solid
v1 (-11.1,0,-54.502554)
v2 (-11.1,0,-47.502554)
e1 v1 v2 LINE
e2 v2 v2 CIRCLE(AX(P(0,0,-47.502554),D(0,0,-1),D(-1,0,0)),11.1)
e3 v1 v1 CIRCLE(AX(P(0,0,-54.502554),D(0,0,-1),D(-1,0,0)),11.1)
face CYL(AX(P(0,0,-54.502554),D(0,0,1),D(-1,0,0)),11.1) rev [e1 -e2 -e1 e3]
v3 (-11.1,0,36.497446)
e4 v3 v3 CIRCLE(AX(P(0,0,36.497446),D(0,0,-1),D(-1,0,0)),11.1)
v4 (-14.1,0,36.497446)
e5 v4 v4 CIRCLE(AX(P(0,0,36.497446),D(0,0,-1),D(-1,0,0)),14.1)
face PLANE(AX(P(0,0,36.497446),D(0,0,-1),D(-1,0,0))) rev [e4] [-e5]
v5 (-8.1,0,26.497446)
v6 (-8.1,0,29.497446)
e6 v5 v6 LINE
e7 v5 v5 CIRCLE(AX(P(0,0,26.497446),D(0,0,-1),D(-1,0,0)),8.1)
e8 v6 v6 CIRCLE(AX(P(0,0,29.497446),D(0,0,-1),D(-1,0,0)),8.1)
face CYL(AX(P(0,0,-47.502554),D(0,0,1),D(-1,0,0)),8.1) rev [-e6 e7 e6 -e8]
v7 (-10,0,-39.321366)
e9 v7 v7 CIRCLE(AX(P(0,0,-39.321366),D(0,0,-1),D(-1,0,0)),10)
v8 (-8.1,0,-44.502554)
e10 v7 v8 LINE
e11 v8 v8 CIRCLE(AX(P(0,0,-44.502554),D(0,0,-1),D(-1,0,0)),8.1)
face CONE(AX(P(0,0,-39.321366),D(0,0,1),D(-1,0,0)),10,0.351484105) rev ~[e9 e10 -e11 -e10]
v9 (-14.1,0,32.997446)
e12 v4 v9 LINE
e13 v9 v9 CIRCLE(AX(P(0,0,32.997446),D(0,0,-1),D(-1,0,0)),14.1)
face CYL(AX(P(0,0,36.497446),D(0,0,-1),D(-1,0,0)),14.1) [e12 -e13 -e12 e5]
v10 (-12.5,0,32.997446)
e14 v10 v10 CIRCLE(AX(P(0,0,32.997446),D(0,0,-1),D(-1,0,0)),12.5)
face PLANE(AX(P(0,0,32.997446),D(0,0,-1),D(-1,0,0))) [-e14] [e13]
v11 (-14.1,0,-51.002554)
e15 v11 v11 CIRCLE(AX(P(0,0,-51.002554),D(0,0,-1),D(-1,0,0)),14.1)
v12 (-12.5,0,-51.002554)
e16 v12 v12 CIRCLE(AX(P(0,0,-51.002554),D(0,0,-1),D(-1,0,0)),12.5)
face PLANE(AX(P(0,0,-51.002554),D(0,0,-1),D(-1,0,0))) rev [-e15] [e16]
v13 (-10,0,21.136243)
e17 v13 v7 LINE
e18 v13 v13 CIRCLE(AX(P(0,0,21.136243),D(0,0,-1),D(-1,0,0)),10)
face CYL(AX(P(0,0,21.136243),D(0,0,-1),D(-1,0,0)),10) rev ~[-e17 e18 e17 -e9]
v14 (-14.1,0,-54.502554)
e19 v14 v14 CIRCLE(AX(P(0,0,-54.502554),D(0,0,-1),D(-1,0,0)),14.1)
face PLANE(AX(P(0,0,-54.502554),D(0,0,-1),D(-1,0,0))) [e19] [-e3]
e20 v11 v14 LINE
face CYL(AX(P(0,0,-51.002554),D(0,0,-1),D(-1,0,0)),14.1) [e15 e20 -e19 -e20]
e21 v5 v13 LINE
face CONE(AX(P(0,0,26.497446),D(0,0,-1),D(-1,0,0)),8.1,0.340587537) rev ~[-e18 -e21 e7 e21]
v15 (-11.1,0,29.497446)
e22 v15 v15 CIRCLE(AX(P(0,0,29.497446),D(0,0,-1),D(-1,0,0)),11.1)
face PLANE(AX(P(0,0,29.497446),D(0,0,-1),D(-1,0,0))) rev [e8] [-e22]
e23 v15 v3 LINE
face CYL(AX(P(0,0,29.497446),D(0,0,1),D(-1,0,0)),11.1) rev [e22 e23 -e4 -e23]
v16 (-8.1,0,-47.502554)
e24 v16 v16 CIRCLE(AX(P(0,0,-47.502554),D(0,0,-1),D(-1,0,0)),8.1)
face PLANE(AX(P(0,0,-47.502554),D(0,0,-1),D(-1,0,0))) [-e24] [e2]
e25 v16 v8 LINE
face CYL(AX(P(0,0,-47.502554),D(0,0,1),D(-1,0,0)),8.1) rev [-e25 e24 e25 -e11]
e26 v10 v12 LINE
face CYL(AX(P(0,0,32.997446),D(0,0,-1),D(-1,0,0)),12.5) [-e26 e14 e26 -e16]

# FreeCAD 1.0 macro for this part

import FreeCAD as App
import Part
import Sketcher

V = App.Vector

doc = App.newDocument("Part")
body = doc.addObject("PartDesign::Body", "Body")

# Sketch on XZ plane
sketch1 = doc.addObject("Sketcher::SketchObject", "Sketch")
body.addObject(sketch1)
sketch1.AttachmentSupport = (doc.XZ_Plane, [""])
sketch1.MapMode = "FlatFace"
sketch1.addGeometry([
    Part.LineSegment(V(-11.1, 36.5, 0), V(-14.1, 36.5, 0)),  # 0
    Part.LineSegment(V(-14.1, 36.5, 0), V(-14.1, 33, 0)),  # 1
    Part.LineSegment(V(-14.1, 33, 0), V(-12.5, 33, 0)),  # 2
    Part.LineSegment(V(-12.5, 33, 0), V(-12.5, -51, 0)),  # 3
    Part.LineSegment(V(-12.5, -51, 0), V(-14.1, -51, 0)),  # 4
    Part.LineSegment(V(-14.1, -51, 0), V(-14.1, -54.5, 0)),  # 5
    Part.LineSegment(V(-14.1, -54.5, 0), V(-11.1, -54.5, 0)),  # 6
    Part.LineSegment(V(-11.1, -54.5, 0), V(-11.1, -47.5, 0)),  # 7
    Part.LineSegment(V(-11.1, -47.5, 0), V(-8.1, -47.5, 0)),  # 8
    Part.LineSegment(V(-8.1, -47.5, 0), V(-8.1, 29.5, 0)),  # 9
    Part.LineSegment(V(-8.1, 29.5, 0), V(-11.1, 29.5, 0)),  # 10
    Part.LineSegment(V(-11.1, 29.5, 0), V(-11.1, 36.5, 0)),  # 11
], False)
sketch1.addConstraint([
    Sketcher.Constraint("Coincident", 0, 2, 1, 1),
    Sketcher.Constraint("Coincident", 1, 2, 2, 1),
    Sketcher.Constraint("Coincident", 2, 2, 3, 1),
    Sketcher.Constraint("Coincident", 3, 2, 4, 1),
    Sketcher.Constraint("Coincident", 4, 2, 5, 1),
    Sketcher.Constraint("Coincident", 5, 2, 6, 1),
    Sketcher.Constraint("Coincident", 6, 2, 7, 1),
    Sketcher.Constraint("Coincident", 7, 2, 8, 1),
    Sketcher.Constraint("Coincident", 8, 2, 9, 1),
    Sketcher.Constraint("Coincident", 9, 2, 10, 1),
    Sketcher.Constraint("Coincident", 10, 2, 11, 1),
    Sketcher.Constraint("Coincident", 11, 2, 0, 1),
    Sketcher.Constraint("Horizontal", 0),
    Sketcher.Constraint("Vertical", 1),
    Sketcher.Constraint("Horizontal", 2),
    Sketcher.Constraint("Vertical", 3),
    Sketcher.Constraint("Horizontal", 4),
    Sketcher.Constraint("Vertical", 5),
    Sketcher.Constraint("Horizontal", 6),
    Sketcher.Constraint("Vertical", 7),
    Sketcher.Constraint("Horizontal", 8),
    Sketcher.Constraint("Vertical", 9),
    Sketcher.Constraint("Horizontal", 10),
    Sketcher.Constraint("Vertical", 11),
    Sketcher.Constraint("Vertical", 1, 2, 4, 2),
    Sketcher.Constraint("Vertical", 7, 2, 10, 2),
    Sketcher.Constraint("Equal", 6, 8),
    Sketcher.Constraint("Equal", 1, 5),
    Sketcher.Constraint("Equal", 7, 11),
    Sketcher.Constraint("DistanceX", 0, 2, 0, 1, 3.0),
    Sketcher.Constraint("DistanceY", 3, 2, 3, 1, 84.0),
    Sketcher.Constraint("DistanceY", 7, 1, 7, 2, 7.0),
    Sketcher.Constraint("DistanceY", 9, 1, 9, 2, 77.0),
    Sketcher.Constraint("DistanceX", 2, 1, 2, 2, 1.6),
    Sketcher.Constraint("DistanceX", 0, 2, -1, 1, 14.1),
    Sketcher.Constraint("DistanceY", -1, 1, 0, 2, 36.497446),
])
revolution = doc.addObject("PartDesign::Revolution", "Revolution")
body.addObject(revolution)
revolution.Profile = sketch1
revolution.ReferenceAxis = (sketch1, ["V_Axis"])
revolution.Angle = 360

# Sketch on XZ plane
sketch2 = doc.addObject("Sketcher::SketchObject", "Sketch001")
body.addObject(sketch2)
sketch2.AttachmentSupport = (doc.XZ_Plane, [""])
sketch2.MapMode = "FlatFace"
sketch2.addGeometry([
    Part.LineSegment(V(-8, -45, 0), V(-8, 26, 0)),
    Part.LineSegment(V(-8, 26, 0), V(-10, 21, 0)),
    Part.LineSegment(V(-10, 21, 0), V(-10, -39, 0)),
    Part.LineSegment(V(-10, -39, 0), V(-8, -45, 0)),
], False)
sketch2.addConstraint([
    Sketcher.Constraint("Coincident", 0, 2, 1, 1),
    Sketcher.Constraint("Coincident", 1, 2, 2, 1),
    Sketcher.Constraint("Coincident", 2, 2, 3, 1),
    Sketcher.Constraint("Coincident", 3, 2, 0, 1),
    Sketcher.Constraint("Vertical", 0),
    Sketcher.Constraint("Vertical", 2),
    Sketcher.Constraint("DistanceY", 0, 1, 0, 2, 71.0),
    Sketcher.Constraint("DistanceX", 1, 2, -1, 1, 10.0),
    Sketcher.Constraint("DistanceX", 0, 2, -1, 1, 8.1),
    Sketcher.Constraint("DistanceY", 2, 2, 2, 1, 60.457609),
    Sketcher.Constraint("Distance", 3, 5.518579),
    Sketcher.Constraint("DistanceY", -1, 1, 0, 2, 26.497446),
])
groove = doc.addObject("PartDesign::Groove", "Groove")
body.addObject(groove)
groove.Profile = sketch2
groove.ReferenceAxis = (sketch2, ["V_Axis"])
groove.Angle = 360

doc.recompute()
